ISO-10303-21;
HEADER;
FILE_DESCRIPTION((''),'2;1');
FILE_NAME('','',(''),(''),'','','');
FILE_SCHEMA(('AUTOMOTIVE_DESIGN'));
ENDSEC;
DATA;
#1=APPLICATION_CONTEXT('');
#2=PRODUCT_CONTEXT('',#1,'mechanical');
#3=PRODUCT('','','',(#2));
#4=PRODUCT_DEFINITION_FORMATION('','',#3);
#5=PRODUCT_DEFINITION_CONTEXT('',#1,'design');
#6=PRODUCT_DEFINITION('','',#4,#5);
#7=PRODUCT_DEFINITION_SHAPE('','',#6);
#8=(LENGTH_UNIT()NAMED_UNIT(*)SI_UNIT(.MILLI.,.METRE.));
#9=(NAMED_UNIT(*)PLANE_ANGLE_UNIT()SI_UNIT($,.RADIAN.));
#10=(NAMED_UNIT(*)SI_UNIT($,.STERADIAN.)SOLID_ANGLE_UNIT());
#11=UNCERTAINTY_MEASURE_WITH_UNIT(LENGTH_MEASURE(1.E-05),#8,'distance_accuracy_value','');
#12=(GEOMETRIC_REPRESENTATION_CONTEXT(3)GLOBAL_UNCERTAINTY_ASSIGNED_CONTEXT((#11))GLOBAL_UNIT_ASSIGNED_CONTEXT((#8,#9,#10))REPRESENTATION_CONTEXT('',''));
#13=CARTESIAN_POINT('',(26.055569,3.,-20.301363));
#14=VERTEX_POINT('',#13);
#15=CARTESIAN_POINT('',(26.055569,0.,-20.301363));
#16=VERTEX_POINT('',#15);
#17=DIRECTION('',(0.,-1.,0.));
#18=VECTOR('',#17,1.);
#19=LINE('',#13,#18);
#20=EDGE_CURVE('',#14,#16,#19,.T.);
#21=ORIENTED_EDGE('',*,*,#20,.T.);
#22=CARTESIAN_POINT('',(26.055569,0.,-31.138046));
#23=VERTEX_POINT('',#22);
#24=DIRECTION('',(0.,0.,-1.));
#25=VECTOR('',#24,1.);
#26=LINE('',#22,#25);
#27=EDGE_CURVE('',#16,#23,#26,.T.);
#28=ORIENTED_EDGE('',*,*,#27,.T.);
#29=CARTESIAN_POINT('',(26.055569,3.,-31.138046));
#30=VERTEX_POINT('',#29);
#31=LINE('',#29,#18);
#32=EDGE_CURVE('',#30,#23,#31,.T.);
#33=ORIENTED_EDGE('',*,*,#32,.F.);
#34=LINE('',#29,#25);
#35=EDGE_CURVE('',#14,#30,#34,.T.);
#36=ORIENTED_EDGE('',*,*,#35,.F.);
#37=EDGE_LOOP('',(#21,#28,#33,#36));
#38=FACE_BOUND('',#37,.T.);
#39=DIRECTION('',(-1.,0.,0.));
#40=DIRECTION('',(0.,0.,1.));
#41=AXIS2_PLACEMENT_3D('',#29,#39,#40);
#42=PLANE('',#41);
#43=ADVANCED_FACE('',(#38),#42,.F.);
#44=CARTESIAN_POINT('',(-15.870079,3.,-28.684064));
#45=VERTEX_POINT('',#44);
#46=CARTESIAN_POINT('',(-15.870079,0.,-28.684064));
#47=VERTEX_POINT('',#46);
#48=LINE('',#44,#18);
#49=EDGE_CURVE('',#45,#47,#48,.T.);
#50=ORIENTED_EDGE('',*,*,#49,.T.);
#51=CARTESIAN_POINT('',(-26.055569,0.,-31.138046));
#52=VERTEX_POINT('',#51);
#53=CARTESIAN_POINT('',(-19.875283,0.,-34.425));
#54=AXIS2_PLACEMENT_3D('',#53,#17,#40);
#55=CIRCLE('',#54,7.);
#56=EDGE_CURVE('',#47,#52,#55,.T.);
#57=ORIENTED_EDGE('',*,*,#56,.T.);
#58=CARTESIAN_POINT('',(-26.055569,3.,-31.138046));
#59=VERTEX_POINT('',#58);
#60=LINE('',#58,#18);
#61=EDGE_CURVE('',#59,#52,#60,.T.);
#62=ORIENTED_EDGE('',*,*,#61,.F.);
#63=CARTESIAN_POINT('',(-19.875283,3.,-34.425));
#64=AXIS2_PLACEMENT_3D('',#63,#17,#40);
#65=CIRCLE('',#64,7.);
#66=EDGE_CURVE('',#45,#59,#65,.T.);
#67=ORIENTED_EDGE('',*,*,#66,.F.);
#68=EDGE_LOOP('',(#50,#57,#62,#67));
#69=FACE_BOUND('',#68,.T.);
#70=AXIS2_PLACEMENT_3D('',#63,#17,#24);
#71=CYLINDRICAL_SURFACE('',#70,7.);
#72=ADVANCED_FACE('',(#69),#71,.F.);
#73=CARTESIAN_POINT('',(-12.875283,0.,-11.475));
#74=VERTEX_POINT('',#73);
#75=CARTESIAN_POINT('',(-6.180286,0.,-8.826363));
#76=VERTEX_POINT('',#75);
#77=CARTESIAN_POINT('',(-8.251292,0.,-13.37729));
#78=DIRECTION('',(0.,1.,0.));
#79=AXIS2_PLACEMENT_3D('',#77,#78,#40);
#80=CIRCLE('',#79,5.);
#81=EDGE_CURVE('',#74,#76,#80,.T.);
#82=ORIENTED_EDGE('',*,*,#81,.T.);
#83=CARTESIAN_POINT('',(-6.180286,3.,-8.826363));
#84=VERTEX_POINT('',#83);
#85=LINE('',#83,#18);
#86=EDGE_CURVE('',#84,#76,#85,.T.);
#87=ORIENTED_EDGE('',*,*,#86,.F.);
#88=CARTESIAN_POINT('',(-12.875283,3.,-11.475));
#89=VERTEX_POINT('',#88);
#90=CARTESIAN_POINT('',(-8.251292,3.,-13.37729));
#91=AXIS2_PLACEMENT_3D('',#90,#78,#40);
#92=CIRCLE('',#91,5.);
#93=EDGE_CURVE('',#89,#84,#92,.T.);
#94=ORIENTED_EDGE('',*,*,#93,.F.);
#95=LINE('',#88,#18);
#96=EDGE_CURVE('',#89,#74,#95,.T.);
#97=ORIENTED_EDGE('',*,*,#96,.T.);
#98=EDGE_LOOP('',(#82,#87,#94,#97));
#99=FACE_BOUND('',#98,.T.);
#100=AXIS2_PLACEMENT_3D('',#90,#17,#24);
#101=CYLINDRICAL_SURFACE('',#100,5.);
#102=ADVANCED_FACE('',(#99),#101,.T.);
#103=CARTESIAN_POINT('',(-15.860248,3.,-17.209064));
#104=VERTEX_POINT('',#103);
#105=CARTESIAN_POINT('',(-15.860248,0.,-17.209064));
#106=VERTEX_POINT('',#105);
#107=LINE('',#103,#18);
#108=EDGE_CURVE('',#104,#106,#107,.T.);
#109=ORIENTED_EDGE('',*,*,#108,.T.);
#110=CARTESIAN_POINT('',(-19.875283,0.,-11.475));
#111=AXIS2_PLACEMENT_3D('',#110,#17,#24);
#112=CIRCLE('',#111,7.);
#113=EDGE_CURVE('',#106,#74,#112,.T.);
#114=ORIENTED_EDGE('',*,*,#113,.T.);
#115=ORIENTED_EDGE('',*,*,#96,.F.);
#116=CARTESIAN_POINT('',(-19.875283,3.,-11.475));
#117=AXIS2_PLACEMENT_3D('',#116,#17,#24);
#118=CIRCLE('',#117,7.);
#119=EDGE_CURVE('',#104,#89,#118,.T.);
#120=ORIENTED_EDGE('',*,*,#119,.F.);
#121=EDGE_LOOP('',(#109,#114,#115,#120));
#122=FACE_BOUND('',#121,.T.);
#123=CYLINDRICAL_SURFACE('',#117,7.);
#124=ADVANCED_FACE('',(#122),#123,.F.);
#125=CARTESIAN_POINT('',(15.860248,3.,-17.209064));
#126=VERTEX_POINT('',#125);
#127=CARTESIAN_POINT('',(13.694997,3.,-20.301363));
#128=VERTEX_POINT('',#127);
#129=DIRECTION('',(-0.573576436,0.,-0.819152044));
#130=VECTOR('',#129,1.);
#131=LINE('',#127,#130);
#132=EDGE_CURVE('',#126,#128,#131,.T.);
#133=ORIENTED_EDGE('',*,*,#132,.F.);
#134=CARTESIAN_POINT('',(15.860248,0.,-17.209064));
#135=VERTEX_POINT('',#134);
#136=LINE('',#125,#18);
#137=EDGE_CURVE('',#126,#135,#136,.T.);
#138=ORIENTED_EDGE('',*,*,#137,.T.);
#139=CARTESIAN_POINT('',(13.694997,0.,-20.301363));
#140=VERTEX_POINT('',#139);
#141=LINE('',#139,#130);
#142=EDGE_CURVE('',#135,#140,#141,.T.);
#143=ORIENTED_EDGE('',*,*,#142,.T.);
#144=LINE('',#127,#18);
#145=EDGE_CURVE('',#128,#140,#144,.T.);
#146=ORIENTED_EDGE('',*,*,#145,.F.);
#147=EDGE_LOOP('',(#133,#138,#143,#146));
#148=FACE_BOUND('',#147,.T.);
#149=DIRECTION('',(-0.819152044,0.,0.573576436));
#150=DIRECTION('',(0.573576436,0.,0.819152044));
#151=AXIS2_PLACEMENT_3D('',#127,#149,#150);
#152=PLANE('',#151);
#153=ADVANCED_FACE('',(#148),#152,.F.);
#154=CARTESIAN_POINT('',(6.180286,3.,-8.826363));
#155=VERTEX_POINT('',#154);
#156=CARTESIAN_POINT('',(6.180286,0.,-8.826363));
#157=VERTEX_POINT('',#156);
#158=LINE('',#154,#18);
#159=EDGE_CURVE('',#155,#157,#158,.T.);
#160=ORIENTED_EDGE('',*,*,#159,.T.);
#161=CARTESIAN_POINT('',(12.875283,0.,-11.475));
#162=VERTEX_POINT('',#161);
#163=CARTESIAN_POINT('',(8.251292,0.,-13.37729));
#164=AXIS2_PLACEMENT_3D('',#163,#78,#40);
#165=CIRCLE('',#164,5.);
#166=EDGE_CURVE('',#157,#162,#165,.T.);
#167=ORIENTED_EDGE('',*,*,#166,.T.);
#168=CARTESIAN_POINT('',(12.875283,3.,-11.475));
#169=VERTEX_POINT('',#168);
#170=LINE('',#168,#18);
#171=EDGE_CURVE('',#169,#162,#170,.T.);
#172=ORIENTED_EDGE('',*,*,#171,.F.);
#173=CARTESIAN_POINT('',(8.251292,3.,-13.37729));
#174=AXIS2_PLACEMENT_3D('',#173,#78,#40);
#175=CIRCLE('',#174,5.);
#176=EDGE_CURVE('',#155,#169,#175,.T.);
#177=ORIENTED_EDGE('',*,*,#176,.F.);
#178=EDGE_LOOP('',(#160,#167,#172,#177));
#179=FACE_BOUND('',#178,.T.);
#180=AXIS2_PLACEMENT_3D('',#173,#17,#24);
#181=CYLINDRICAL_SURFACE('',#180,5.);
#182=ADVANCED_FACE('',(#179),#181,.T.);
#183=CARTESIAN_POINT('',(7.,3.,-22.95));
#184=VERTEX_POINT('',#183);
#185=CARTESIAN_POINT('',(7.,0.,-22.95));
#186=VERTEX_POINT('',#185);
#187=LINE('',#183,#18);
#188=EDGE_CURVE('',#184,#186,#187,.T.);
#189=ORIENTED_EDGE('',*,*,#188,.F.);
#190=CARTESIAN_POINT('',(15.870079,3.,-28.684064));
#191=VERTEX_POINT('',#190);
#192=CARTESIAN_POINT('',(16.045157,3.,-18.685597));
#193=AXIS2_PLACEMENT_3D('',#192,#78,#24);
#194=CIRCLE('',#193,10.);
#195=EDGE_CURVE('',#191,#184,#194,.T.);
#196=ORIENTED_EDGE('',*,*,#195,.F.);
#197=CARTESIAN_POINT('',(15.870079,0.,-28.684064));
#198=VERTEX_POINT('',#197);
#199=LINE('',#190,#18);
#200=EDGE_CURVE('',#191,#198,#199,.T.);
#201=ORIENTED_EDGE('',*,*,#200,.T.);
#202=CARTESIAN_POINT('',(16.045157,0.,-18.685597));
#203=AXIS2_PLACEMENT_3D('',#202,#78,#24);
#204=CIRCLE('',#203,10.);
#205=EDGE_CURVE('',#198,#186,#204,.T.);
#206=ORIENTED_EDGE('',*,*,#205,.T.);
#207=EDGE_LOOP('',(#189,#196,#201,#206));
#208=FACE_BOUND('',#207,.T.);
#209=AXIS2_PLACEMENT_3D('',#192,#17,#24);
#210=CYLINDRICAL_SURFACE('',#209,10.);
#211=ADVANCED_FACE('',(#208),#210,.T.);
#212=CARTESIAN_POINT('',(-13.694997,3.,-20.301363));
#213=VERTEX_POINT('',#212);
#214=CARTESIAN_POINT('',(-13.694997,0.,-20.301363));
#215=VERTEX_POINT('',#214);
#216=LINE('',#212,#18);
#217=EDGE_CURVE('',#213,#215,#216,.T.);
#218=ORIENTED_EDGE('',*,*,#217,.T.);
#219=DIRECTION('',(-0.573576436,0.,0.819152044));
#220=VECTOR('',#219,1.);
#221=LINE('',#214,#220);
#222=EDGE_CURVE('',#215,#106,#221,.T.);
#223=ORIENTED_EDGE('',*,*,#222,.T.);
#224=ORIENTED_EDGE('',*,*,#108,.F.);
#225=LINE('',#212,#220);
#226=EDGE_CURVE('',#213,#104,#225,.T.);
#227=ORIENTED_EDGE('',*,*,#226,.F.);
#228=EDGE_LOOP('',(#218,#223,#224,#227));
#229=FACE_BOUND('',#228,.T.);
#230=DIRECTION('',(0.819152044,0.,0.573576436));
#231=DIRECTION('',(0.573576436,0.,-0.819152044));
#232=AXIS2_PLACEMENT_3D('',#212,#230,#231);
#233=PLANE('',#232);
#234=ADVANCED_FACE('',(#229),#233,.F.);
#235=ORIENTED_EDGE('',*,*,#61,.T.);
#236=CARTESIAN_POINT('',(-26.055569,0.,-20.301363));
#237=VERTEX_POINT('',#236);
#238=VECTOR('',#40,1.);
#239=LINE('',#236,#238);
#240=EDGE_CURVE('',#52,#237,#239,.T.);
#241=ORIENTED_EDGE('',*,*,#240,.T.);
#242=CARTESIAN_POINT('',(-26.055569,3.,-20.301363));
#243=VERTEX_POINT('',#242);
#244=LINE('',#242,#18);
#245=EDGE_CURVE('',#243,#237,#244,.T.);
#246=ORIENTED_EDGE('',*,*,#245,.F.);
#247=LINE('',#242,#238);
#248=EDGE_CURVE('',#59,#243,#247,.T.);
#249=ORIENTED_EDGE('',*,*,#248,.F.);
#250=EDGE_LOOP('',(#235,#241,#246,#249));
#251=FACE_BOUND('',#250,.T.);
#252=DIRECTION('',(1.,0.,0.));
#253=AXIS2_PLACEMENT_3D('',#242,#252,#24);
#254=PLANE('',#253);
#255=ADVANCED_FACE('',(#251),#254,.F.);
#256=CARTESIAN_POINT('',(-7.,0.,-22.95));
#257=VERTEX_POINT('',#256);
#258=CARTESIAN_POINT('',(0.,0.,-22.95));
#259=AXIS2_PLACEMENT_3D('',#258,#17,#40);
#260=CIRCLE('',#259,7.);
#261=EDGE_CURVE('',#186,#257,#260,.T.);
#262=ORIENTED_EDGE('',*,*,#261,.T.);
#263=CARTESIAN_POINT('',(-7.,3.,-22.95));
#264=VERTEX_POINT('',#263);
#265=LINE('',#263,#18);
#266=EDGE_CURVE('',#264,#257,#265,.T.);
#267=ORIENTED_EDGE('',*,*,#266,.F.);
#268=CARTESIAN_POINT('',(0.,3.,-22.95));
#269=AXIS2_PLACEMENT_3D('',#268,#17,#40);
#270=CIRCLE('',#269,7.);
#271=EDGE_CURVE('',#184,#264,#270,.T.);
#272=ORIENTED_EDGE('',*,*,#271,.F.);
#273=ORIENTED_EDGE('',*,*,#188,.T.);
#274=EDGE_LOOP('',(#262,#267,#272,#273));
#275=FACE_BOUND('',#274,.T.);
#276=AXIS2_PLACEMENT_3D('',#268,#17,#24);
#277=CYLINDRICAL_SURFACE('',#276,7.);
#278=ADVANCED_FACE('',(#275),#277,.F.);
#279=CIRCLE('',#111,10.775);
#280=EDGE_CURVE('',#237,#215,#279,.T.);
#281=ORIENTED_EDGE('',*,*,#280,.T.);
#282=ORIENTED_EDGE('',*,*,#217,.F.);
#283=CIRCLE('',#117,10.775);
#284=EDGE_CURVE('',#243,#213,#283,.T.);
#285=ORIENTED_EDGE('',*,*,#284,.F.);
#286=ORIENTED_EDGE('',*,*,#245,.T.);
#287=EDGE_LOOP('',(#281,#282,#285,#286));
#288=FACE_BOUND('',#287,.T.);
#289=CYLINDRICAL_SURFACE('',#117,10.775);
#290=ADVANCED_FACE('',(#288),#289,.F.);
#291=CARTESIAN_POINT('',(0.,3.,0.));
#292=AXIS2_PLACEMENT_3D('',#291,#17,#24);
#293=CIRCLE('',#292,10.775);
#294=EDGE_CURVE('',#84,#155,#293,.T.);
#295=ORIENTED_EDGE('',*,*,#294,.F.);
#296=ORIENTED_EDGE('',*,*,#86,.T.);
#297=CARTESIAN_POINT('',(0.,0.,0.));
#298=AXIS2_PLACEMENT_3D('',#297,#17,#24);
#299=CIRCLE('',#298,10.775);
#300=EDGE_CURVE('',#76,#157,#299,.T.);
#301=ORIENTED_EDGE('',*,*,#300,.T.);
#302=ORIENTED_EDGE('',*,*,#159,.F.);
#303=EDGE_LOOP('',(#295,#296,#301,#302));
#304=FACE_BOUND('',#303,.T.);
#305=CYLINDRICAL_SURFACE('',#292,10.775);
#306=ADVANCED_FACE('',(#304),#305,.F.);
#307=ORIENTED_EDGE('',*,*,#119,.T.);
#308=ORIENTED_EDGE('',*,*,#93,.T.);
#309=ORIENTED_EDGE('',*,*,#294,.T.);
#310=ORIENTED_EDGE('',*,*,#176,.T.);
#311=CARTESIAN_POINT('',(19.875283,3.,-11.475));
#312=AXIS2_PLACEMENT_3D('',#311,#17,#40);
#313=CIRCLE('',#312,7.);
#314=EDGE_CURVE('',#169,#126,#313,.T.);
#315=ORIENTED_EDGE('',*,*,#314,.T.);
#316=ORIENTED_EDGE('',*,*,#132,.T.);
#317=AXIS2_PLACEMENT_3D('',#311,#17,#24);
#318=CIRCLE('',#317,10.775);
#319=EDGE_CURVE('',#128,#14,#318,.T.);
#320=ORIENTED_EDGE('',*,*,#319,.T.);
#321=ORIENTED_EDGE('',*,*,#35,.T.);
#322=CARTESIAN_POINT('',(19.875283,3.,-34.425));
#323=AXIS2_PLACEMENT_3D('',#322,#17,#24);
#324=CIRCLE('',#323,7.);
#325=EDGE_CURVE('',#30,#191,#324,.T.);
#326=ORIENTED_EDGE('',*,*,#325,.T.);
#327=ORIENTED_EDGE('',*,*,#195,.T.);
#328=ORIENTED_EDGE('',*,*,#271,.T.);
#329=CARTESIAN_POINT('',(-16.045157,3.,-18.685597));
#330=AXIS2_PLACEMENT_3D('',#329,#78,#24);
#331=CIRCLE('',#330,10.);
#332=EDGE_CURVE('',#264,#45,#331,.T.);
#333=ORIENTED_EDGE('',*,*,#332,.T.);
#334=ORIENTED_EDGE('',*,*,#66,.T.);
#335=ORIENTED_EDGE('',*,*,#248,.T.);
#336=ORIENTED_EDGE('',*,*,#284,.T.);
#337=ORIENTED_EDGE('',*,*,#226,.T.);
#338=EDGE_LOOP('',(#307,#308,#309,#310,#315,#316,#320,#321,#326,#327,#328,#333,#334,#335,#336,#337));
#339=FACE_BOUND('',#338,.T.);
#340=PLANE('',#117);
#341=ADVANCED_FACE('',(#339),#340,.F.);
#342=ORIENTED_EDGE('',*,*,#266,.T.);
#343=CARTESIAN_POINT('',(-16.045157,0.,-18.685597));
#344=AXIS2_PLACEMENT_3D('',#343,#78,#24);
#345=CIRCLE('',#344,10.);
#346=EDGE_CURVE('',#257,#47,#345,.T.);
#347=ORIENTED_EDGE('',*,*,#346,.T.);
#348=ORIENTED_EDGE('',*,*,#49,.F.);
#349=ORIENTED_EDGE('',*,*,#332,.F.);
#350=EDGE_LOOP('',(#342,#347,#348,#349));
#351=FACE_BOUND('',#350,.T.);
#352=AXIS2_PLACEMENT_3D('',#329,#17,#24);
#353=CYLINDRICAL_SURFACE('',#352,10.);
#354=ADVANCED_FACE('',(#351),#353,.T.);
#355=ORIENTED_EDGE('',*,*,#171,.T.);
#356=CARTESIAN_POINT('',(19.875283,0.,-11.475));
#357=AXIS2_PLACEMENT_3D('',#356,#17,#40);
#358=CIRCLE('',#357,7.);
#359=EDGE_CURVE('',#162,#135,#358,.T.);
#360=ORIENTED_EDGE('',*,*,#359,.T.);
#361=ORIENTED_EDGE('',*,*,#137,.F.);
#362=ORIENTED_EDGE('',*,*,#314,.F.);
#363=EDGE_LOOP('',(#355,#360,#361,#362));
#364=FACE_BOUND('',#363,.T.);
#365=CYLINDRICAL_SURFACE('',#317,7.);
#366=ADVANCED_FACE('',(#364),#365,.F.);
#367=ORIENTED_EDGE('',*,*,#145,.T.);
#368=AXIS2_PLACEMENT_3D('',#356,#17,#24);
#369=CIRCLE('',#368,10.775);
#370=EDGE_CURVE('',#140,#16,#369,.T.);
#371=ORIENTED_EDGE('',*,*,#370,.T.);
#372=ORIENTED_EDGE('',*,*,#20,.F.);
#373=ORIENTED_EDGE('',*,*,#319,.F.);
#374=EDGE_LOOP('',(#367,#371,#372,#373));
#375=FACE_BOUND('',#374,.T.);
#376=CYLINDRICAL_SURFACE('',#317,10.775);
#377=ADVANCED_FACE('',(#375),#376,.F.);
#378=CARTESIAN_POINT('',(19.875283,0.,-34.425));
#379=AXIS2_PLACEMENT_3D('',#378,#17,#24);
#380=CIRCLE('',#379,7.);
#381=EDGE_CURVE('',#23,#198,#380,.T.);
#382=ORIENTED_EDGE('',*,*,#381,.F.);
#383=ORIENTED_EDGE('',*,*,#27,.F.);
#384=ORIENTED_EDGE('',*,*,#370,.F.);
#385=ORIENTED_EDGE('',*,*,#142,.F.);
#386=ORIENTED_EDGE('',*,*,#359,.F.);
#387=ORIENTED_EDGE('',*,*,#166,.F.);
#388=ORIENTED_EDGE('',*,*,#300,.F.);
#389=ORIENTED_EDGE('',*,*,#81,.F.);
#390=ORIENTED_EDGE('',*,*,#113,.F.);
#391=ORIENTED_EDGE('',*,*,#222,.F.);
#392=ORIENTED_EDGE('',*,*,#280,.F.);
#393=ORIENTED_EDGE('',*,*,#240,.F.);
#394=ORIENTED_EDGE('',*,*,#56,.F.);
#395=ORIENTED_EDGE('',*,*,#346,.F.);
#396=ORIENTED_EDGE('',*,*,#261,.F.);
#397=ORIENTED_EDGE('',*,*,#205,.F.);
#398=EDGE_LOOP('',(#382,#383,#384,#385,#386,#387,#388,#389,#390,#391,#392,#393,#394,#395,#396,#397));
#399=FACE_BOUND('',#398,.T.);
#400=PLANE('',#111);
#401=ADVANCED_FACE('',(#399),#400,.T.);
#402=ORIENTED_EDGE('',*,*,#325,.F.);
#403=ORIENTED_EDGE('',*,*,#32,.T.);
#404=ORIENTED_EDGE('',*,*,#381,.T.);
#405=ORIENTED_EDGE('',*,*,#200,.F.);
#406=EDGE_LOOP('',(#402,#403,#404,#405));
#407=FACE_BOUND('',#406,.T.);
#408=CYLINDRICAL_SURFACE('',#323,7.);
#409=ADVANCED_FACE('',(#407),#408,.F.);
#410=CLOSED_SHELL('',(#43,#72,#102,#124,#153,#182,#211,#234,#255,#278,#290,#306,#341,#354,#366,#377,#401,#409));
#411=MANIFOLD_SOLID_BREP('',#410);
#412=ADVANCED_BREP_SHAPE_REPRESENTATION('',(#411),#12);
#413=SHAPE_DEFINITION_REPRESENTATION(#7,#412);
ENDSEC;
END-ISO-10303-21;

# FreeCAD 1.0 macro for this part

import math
import FreeCAD as App
import Part
import Sketcher

V = App.Vector
Q = App.Units.Quantity

doc = App.newDocument("Part")
params = doc.addObject("Spreadsheet::Sheet", "Params")
for row, (alias, value) in enumerate([
    ("sketch1_radius", "7 mm"),
    ("sketch1_radius2", "5 mm"),
    ("sketch1_radius3", "10 mm"),
    ("pad1_length", "3 mm"),
], start=1):
    params.set(f"A{row}", alias)
    params.set(f"B{row}", "=" + value)
    params.setAlias(f"B{row}", alias)

body = doc.addObject("PartDesign::Body", "Body")

# Sketch on XZ plane
sketch1 = doc.addObject("Sketcher::SketchObject", "Sketch")
body.addObject(sketch1)
sketch1.AttachmentSupport = (doc.XZ_Plane, [""])
sketch1.MapMode = "FlatFace"
sketch1.addGeometry([
    Part.LineSegment(V(-13.7, -20.3, 0), V(-15.9, -17.2, 0)),  # 0
    Part.ArcOfCircle(Part.Circle(V(-19.9, -11.5, 0), V(0, 0, 1), 7), math.radians(-55), math.radians(0)),  # 1
    Part.ArcOfCircle(Part.Circle(V(-8.3, -13.4, 0), V(0, 0, 1), 5), math.radians(66), math.radians(158)),  # 2
    Part.ArcOfCircle(Part.Circle(V(0, 0, 0), V(0, 0, 1), 10.8), math.radians(-125), math.radians(-55)),  # 3
    Part.ArcOfCircle(Part.Circle(V(8.3, -13.4, 0), V(0, 0, 1), 5), math.radians(22), math.radians(114)),  # 4
    Part.ArcOfCircle(Part.Circle(V(19.9, -11.5, 0), V(0, 0, 1), 7), math.radians(-180), math.radians(-125)),  # 5
    Part.LineSegment(V(15.9, -17.2, 0), V(13.7, -20.3, 0)),  # 6
    Part.ArcOfCircle(Part.Circle(V(19.9, -11.5, 0), V(0, 0, 1), 10.8), math.radians(-125), math.radians(-55)),  # 7
    Part.LineSegment(V(26.1, -20.3, 0), V(26.1, -31.1, 0)),  # 8
    Part.ArcOfCircle(Part.Circle(V(19.9, -34.4, 0), V(0, 0, 1), 7), math.radians(28), math.radians(125)),  # 9
    Part.ArcOfCircle(Part.Circle(V(16, -18.7, 0), V(0, 0, 1), 10), math.radians(-155), math.radians(-91)),  # 10
    Part.ArcOfCircle(Part.Circle(V(0, -22.9, 0), V(0, 0, 1), 7), math.radians(0), math.radians(180)),  # 11
    Part.ArcOfCircle(Part.Circle(V(-16, -18.7, 0), V(0, 0, 1), 10), math.radians(-89), math.radians(-25)),  # 12
    Part.ArcOfCircle(Part.Circle(V(-19.9, -34.4, 0), V(0, 0, 1), 7), math.radians(55), math.radians(152)),  # 13
    Part.LineSegment(V(-26.1, -31.1, 0), V(-26.1, -20.3, 0)),  # 14
    Part.ArcOfCircle(Part.Circle(V(-19.9, -11.5, 0), V(0, 0, 1), 10.8), math.radians(-125), math.radians(-55)),  # 15
], False)
sketch1.addConstraint([
    Sketcher.Constraint("Coincident", 0, 2, 1, 1),
    Sketcher.Constraint("Coincident", 1, 2, 2, 2),
    Sketcher.Constraint("Coincident", 2, 1, 3, 1),
    Sketcher.Constraint("Coincident", 3, 2, 4, 2),
    Sketcher.Constraint("Coincident", 4, 1, 5, 1),
    Sketcher.Constraint("Coincident", 5, 2, 6, 1),
    Sketcher.Constraint("Coincident", 6, 2, 7, 1),
    Sketcher.Constraint("Coincident", 7, 2, 8, 1),
    Sketcher.Constraint("Coincident", 8, 2, 9, 1),
    Sketcher.Constraint("Coincident", 9, 2, 10, 2),
    Sketcher.Constraint("Coincident", 10, 1, 11, 1),
    Sketcher.Constraint("Coincident", 11, 2, 12, 2),
    Sketcher.Constraint("Coincident", 12, 1, 13, 1),
    Sketcher.Constraint("Coincident", 13, 2, 14, 1),
    Sketcher.Constraint("Coincident", 14, 2, 15, 1),
    Sketcher.Constraint("Coincident", 15, 2, 0, 1),
    Sketcher.Constraint("Vertical", 8),
    Sketcher.Constraint("Vertical", 14),
    Sketcher.Constraint("Coincident", 3, 3, -1, 1),
    Sketcher.Constraint("Coincident", 7, 3, 5, 3),
    Sketcher.Constraint("Coincident", 15, 3, 1, 3),
    Sketcher.Constraint("Equal", 2, 4),
    Sketcher.Constraint("Equal", 1, 5),
    Sketcher.Constraint("Equal", 3, 7),
    Sketcher.Constraint("Equal", 5, 9),
    Sketcher.Constraint("Equal", 9, 11),
    Sketcher.Constraint("Equal", 10, 12),
    Sketcher.Constraint("Equal", 11, 13),
    Sketcher.Constraint("Equal", 7, 15),
    Sketcher.Constraint("Symmetric", 2, 3, 4, 3, -2),
    Sketcher.Constraint("Symmetric", 1, 3, 5, 3, -2),
    Sketcher.Constraint("Symmetric", 10, 3, 12, 3, -2),
    Sketcher.Constraint("Symmetric", 9, 3, 13, 3, -2),
    Sketcher.Constraint("PointOnObject", 11, 3, -2),
    Sketcher.Constraint("Horizontal", 15, 3, 1, 2),
    Sketcher.Constraint("Horizontal", 0, 2, 5, 2),
    Sketcher.Constraint("Horizontal", 6, 2, 7, 2),
    Sketcher.Constraint("Horizontal", 11, 3, 10, 1),
    Sketcher.Constraint("Horizontal", 8, 2, 13, 2),
    Sketcher.Constraint("Horizontal", 14, 2, 15, 2),
    Sketcher.Constraint("Vertical", 7, 3, 9, 3),
    Sketcher.Constraint("Radius", 1, Q("7 mm")),
    Sketcher.Constraint("Radius", 2, Q("5 mm")),
    Sketcher.Constraint("Radius", 10, Q("10 mm")),
    Sketcher.Constraint("Angle", 0, Q("125 deg")),
    Sketcher.Constraint("Radius", 3, Q("10.775 mm")),
    Sketcher.Constraint("DistanceY", 11, 3, -1, 1, Q("22.95 mm")),
    Sketcher.Constraint("DistanceY", 9, 3, 7, 3, Q("22.95 mm")),
    Sketcher.Constraint("DistanceY", 1, 3, -1, 1, Q("11.475 mm")),
    Sketcher.Constraint("DistanceY", 9, 2, 5, 2, Q("11.475 mm")),
    Sketcher.Constraint("DistanceY", 0, 2, 2, 1, Q("8.382701 mm")),
    Sketcher.Constraint("DistanceY", 8, 2, 8, 1, Q("10.836683 mm")),
    Sketcher.Constraint("DistanceY", 2, 3, -1, 1, Q("13.37729 mm")),
])
sketch1.setExpression("Constraints[41]", "Params.sketch1_radius")
sketch1.setExpression("Constraints[42]", "Params.sketch1_radius2")
sketch1.setExpression("Constraints[43]", "Params.sketch1_radius3")
pad1 = doc.addObject("PartDesign::Pad", "Pad")
body.addObject(pad1)
pad1.Profile = sketch1
pad1.setExpression("Length", "Params.pad1_length")
pad1.Reversed = True

doc.recompute()
